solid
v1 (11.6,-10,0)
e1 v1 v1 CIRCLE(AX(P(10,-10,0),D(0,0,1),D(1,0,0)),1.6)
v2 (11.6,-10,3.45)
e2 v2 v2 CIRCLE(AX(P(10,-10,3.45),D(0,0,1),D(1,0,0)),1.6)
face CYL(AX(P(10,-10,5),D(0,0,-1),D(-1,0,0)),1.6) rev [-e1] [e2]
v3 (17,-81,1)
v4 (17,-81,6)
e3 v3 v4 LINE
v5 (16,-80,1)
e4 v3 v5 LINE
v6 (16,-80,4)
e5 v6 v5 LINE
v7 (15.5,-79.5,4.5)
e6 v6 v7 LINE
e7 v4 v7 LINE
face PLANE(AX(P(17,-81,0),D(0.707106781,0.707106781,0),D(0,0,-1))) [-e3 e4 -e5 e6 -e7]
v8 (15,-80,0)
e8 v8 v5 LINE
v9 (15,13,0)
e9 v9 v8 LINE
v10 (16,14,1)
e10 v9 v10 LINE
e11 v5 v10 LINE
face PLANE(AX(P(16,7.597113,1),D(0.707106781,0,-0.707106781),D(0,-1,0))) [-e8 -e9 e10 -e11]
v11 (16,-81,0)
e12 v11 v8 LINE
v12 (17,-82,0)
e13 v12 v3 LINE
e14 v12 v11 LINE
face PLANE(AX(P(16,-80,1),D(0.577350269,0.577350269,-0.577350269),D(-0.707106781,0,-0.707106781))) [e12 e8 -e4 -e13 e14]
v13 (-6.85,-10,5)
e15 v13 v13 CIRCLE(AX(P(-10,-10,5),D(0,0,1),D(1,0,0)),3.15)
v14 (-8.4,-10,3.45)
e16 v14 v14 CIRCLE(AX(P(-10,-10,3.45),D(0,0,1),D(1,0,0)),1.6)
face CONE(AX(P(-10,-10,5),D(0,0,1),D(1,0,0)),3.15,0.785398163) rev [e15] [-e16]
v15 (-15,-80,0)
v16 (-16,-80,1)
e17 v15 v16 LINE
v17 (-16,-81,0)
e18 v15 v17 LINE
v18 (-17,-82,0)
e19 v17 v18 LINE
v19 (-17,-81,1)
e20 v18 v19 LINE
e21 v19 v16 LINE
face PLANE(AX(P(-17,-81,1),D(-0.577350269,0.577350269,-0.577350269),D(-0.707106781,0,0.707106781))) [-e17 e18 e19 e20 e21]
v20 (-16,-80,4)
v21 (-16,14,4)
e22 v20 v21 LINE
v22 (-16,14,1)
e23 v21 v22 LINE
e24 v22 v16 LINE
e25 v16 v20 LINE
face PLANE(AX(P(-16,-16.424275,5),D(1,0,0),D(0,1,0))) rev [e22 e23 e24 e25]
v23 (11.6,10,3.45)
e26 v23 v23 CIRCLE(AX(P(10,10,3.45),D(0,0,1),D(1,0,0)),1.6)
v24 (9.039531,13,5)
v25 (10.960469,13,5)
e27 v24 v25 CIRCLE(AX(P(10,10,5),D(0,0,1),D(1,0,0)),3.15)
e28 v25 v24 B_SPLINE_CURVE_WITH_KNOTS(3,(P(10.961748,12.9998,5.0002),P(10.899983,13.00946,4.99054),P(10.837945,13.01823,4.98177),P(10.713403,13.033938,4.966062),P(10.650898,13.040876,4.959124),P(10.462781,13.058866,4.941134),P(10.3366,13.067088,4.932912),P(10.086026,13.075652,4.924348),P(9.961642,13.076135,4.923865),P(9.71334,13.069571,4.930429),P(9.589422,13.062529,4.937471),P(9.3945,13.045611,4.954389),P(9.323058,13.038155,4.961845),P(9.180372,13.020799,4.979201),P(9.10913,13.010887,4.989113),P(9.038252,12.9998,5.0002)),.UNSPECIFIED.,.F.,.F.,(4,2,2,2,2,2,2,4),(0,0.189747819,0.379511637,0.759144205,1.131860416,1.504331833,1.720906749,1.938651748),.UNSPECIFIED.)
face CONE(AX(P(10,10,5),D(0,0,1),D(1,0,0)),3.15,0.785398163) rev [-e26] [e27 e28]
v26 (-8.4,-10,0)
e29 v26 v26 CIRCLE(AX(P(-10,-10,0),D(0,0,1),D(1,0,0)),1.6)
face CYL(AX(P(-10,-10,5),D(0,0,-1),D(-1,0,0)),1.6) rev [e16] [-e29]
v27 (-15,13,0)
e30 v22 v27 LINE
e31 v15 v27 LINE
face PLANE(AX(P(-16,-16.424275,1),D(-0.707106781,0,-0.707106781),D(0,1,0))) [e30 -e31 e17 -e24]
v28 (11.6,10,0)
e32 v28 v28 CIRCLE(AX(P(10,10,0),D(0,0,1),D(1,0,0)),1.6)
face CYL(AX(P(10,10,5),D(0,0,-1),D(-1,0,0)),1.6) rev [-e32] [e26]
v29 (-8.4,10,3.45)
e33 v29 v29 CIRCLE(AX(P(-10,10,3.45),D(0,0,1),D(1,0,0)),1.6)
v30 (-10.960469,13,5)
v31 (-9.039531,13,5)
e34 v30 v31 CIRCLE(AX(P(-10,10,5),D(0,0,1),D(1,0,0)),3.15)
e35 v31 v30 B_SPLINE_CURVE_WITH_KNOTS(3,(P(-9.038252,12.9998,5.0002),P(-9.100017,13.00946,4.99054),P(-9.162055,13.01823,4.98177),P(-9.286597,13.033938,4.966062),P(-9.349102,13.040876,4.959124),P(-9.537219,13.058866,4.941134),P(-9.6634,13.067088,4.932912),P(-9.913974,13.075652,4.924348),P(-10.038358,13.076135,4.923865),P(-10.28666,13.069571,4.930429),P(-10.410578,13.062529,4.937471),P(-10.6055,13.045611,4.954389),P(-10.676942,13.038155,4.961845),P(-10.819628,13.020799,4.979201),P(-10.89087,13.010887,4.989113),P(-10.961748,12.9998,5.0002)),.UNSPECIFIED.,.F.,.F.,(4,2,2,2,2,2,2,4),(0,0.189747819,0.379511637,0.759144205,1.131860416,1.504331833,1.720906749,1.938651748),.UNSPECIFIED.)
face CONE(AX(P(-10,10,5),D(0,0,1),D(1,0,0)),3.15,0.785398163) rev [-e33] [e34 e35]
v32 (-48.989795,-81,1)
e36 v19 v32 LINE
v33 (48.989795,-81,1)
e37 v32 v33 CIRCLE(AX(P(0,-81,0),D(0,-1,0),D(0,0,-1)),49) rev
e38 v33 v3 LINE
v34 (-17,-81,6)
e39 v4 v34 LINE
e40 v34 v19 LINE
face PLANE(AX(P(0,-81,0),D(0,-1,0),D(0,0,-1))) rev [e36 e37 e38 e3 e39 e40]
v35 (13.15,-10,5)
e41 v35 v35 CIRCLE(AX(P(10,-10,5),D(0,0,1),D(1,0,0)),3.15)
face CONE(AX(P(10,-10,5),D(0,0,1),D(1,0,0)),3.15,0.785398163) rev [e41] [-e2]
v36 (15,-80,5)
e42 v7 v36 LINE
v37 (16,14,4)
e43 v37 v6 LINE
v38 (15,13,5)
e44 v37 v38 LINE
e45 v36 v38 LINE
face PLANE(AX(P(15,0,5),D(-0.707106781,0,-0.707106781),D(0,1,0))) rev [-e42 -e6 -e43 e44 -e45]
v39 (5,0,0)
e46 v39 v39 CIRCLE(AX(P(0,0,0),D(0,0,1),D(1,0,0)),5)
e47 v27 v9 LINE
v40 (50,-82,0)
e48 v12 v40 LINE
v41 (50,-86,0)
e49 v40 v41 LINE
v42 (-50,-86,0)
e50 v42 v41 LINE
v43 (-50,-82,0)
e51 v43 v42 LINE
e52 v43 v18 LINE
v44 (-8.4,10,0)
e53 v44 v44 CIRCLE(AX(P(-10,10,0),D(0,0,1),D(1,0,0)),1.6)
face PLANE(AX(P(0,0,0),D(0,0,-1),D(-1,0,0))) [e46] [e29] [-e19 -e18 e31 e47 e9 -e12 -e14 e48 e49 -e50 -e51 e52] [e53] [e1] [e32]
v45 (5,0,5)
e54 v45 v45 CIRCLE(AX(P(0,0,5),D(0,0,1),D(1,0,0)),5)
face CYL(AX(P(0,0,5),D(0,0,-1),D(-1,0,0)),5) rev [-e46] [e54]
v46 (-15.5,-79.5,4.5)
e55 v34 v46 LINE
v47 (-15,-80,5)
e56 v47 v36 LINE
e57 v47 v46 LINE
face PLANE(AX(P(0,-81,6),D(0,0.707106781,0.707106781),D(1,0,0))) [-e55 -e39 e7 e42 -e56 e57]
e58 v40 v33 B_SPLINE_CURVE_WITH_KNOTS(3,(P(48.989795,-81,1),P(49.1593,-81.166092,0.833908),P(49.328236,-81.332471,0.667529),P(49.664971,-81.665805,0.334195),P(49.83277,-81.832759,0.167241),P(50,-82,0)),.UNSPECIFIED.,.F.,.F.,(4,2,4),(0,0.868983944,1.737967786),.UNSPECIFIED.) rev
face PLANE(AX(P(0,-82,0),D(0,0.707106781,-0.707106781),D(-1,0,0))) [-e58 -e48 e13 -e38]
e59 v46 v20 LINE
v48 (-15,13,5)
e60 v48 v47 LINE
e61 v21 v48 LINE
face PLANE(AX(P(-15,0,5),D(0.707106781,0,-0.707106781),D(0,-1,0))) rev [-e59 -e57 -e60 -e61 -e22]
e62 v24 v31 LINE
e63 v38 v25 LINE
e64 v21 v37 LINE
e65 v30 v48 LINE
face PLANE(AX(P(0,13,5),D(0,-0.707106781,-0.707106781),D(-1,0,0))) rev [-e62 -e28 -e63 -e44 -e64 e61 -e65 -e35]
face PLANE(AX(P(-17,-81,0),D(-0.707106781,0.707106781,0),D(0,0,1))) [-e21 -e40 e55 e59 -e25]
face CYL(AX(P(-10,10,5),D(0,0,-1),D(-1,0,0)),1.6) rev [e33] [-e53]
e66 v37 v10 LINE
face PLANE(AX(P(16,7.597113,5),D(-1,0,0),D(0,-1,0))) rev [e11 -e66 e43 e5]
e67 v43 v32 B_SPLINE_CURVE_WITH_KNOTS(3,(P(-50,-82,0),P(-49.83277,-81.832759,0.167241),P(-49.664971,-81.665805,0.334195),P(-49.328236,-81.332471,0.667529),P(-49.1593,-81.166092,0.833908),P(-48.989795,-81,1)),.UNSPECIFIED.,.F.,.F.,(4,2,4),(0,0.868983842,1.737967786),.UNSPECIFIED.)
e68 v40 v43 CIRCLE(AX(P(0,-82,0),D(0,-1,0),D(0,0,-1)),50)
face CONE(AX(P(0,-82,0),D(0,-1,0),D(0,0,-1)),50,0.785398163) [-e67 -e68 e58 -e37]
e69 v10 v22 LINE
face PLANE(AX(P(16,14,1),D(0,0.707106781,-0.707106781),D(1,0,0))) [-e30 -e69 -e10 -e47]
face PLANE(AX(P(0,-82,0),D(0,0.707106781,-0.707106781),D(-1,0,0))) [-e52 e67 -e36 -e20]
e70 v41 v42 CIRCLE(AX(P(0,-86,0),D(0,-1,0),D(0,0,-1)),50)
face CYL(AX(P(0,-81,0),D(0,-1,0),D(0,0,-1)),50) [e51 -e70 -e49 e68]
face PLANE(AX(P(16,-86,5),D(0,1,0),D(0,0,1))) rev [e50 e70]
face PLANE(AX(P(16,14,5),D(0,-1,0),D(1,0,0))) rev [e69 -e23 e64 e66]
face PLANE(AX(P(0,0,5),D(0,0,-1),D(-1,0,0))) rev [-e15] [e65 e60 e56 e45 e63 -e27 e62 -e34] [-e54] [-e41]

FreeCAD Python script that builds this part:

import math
import FreeCAD as App
import Part
import Sketcher
from FreeCAD import Vector


def edges_at(feature, points):
    """Names of the edges that pass closest to the given points."""
    edges = feature.Shape.Edges
    near = lambda p: min(range(len(edges)), key=lambda i: edges[i].distToShape(Part.Vertex(*p))[0])
    return sorted({f"Edge{near(p) + 1}" for p in points})

doc = App.newDocument("Part")
body = doc.addObject("PartDesign::Body", "Body")

sketch1 = body.newObject("Sketcher::SketchObject", "Sketch")
sketch1.AttachmentSupport = (doc.getObject("XY_Plane"), [""])
sketch1.MapMode = "FlatFace"
sketch1.addGeometry([
    Part.LineSegment(Vector(16, 14, 0), Vector(-16, 14, 0)),
    Part.LineSegment(Vector(-16, 14, 0), Vector(-16, -86, 0)),
    Part.LineSegment(Vector(-16, -86, 0), Vector(16, -86, 0)),
    Part.LineSegment(Vector(16, -86, 0), Vector(16, 14, 0)),
    Part.Circle(Vector(-10, -10, 0), Vector(0, 0, 1), 1.6),
    Part.Circle(Vector(10, -10, 0), Vector(0, 0, 1), 1.6),
    Part.Circle(Vector(-10, 10, 0), Vector(0, 0, 1), 1.6),
    Part.Circle(Vector(0, 0, 0), Vector(0, 0, 1), 5),
    Part.Circle(Vector(10, 10, 0), Vector(0, 0, 1), 1.6),
], False)
sketch1.addConstraint([
    Sketcher.Constraint("Coincident", 0, 2, 1, 1),
    Sketcher.Constraint("Coincident", 1, 2, 2, 1),
    Sketcher.Constraint("Coincident", 2, 2, 3, 1),
    Sketcher.Constraint("Coincident", 3, 2, 0, 1),
    Sketcher.Constraint("Horizontal", 0),
    Sketcher.Constraint("Vertical", 1),
    Sketcher.Constraint("Horizontal", 2),
    Sketcher.Constraint("Vertical", 3),
    Sketcher.Constraint("Coincident", 7, 3, -1, 1),
    Sketcher.Constraint("Equal", 4, 5),
    Sketcher.Constraint("Equal", 5, 6),
    Sketcher.Constraint("Equal", 6, 8),
    Sketcher.Constraint("Symmetric", 5, 3, 6, 3, -1, 1),
    Sketcher.Constraint("Symmetric", 4, 3, 8, 3, -1, 1),
    Sketcher.Constraint("Symmetric", 4, 3, 5, 3, -2),
    Sketcher.Constraint("Diameter", 7, 10.0),
    Sketcher.Constraint("Diameter", 4, 3.2),
    Sketcher.Constraint("DistanceX", 0, 2, 0, 1, 32.0),
    Sketcher.Constraint("DistanceY", 1, 2, 1, 1, 100.0),
    Sketcher.Constraint("DistanceX", 4, 3, -1, 1, 10.0),
    Sketcher.Constraint("DistanceY", 4, 3, -1, 1, 10.0),
    Sketcher.Constraint("DistanceX", 0, 2, -1, 1, 16.0),
    Sketcher.Constraint("DistanceY", -1, 1, 0, 2, 14.0),
])
pad1 = body.newObject("PartDesign::Pad", "Pad")
pad1.Profile = sketch1
pad1.Length = 5

sketch2 = body.newObject("Sketcher::SketchObject", "Sketch001")
sketch2.AttachmentSupport = (doc.getObject("XZ_Plane"), [""])
sketch2.MapMode = "FlatFace"
sketch2.AttachmentOffset = App.Placement(Vector(0, 0, 86), App.Rotation())
sketch2.addGeometry([
    Part.LineSegment(Vector(-50, 0, 0), Vector(-16, 0, 0)),
    Part.LineSegment(Vector(-16, 0, 0), Vector(-16, 5, 0)),
    Part.LineSegment(Vector(-16, 5, 0), Vector(16, 5, 0)),
    Part.LineSegment(Vector(16, 5, 0), Vector(16, 0, 0)),
    Part.LineSegment(Vector(16, 0, 0), Vector(50, 0, 0)),
    Part.ArcOfCircle(Part.Circle(Vector(0, 0, 0), Vector(0, 0, 1), 50), math.radians(0), math.radians(180)),
], False)
sketch2.addConstraint([
    Sketcher.Constraint("Coincident", 0, 2, 1, 1),
    Sketcher.Constraint("Coincident", 1, 2, 2, 1),
    Sketcher.Constraint("Coincident", 2, 2, 3, 1),
    Sketcher.Constraint("Coincident", 3, 2, 4, 1),
    Sketcher.Constraint("Coincident", 4, 2, 5, 1),
    Sketcher.Constraint("Coincident", 5, 2, 0, 1),
    Sketcher.Constraint("Horizontal", 0),
    Sketcher.Constraint("Vertical", 1),
    Sketcher.Constraint("Horizontal", 2),
    Sketcher.Constraint("Vertical", 3),
    Sketcher.Constraint("Horizontal", 4),
    Sketcher.Constraint("Coincident", 5, 3, -1, 1),
    Sketcher.Constraint("Symmetric", 0, 2, 3, 2, -1, 1),
    Sketcher.Constraint("PointOnObject", 0, 2, -1),
    Sketcher.Constraint("Radius", 5, 50.0),
    Sketcher.Constraint("DistanceX", 0, 1, 0, 2, 34.0),
    Sketcher.Constraint("DistanceY", 1, 1, 1, 2, 5.0),
])
pad2 = body.newObject("PartDesign::Pad", "Pad001")
pad2.Profile = sketch2
pad2.Length = 5
pad2.Reversed = True
doc.recompute()

chamfer = body.newObject("PartDesign::Chamfer", "Chamfer")
chamfer.Base = (pad2, edges_at(pad2, [
    (16, -33.5, 0),
    (33, -81, 0),
    (-33, -81, 0),
    (0, -81, 50),
    (16, -81, 2.5),
    (0, -81, 5),
    (-16, -81, 2.5),
    (-16, -33.5, 0),
]))
chamfer.Size = 1
doc.recompute()

chamfer2 = body.newObject("PartDesign::Chamfer", "Chamfer001")
chamfer2.Base = (chamfer, edges_at(chamfer, [(0, 14, 5), (-16, -33, 5), (16, -33, 5)]))
chamfer2.Size = 1
doc.recompute()

chamfer3 = body.newObject("PartDesign::Chamfer", "Chamfer002")
chamfer3.Base = (chamfer2, edges_at(chamfer2, [(0, 14, 0)]))
chamfer3.Size = 1

sketch3 = body.newObject("Sketcher::SketchObject", "Sketch002")
sketch3.AttachmentSupport = (doc.getObject("XY_Plane"), [""])
sketch3.MapMode = "FlatFace"
sketch3.AttachmentOffset = App.Placement(Vector(0, 0, 5), App.Rotation())
sketch3.addGeometry([
    Part.Circle(Vector(-10, 10, 0), Vector(0, 0, 1), 1.6),
    Part.Circle(Vector(10, 10, 0), Vector(0, 0, 1), 1.6),
    Part.Circle(Vector(-10, -10, 0), Vector(0, 0, 1), 1.6),
    Part.Circle(Vector(10, -10, 0), Vector(0, 0, 1), 1.6),
], False)
sketch3.addConstraint([
    Sketcher.Constraint("Equal", 0, 1),
    Sketcher.Constraint("Equal", 1, 2),
    Sketcher.Constraint("Equal", 2, 3),
    Sketcher.Constraint("Symmetric", 1, 3, 2, 3, -1, 1),
    Sketcher.Constraint("Symmetric", 0, 3, 3, 3, -1, 1),
    Sketcher.Constraint("Symmetric", 0, 3, 1, 3, -2),
    Sketcher.Constraint("Diameter", 0, 3.2),
    Sketcher.Constraint("DistanceX", 0, 3, -1, 1, 10.0),
    Sketcher.Constraint("DistanceY", -1, 1, 0, 3, 10.0),
])
doc.recompute()
hole = body.newObject("PartDesign::Hole", "Hole")
hole.Profile = sketch3
hole.ThreadType = "None"
hole.Diameter = 3.2
hole.DepthType = "ThroughAll"
hole.HoleCutType = "Countersink"
hole.HoleCutDiameter = 6.3
hole.HoleCutCountersinkAngle = 90

doc.recompute()
